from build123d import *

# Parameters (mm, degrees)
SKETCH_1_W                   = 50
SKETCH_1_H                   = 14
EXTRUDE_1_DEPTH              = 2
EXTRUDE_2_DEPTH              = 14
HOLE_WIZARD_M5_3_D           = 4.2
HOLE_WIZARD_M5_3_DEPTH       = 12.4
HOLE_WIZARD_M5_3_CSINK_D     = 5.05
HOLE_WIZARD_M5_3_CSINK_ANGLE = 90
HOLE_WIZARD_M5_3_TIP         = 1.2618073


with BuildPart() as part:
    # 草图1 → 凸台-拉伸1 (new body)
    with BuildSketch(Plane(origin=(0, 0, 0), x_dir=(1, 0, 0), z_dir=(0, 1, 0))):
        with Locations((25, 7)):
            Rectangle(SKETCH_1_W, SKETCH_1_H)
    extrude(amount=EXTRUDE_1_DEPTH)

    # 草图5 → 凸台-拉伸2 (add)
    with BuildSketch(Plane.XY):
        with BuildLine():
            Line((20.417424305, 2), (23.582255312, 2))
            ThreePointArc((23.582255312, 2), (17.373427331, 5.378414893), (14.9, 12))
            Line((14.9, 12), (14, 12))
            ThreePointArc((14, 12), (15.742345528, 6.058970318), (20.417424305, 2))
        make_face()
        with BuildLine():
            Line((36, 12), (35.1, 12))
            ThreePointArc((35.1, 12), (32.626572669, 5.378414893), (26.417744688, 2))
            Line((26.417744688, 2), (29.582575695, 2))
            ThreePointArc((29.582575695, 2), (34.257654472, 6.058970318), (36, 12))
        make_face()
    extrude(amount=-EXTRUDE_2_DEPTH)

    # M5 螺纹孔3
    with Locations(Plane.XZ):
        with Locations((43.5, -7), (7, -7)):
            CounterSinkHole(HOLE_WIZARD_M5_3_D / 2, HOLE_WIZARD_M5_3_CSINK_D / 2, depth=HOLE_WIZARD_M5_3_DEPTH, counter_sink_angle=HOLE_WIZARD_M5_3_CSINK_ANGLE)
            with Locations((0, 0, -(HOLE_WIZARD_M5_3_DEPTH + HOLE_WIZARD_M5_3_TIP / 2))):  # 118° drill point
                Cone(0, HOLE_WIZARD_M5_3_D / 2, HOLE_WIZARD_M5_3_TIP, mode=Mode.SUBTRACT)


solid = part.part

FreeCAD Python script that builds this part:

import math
import FreeCAD as App
import Part
import Sketcher

doc = App.newDocument("Part")
params = doc.addObject("Spreadsheet::Sheet", "Params")
for row, (alias, value) in enumerate([
    ("sketch1_width", "50 mm"),
    ("sketch1_height", "14 mm"),
    ("pad1_length", "2 mm"),
    ("sketch2_radius", "11 mm"),
    ("sketch2_radius2", "10.1 mm"),
    ("pad2_length", "14 mm"),
    ("sketch3_diameter", "4.2 mm"),
    ("hole_diameter", "4.2 mm"),
    ("hole_depth", "12.4 mm"),
    ("hole_csink_diameter", "5.05 mm"),
], start=1):
    params.set(f"A{row}", alias)
    params.set(f"B{row}", "=" + value)
    params.setAlias(f"B{row}", alias)

body = doc.addObject("PartDesign::Body", "Body")

sketch1 = body.newObject("Sketcher::SketchObject", "Sketch")
sketch1.AttachmentSupport = (doc.getObject("XZ_Plane"), [""])
sketch1.MapMode = "FlatFace"
sketch1.addGeometry(Part.LineSegment(App.Vector(0, -14, 0), App.Vector(0, 0, 0)), False)
sketch1.addGeometry(Part.LineSegment(App.Vector(0, 0, 0), App.Vector(50, 0, 0)), False)
sketch1.addGeometry(Part.LineSegment(App.Vector(50, 0, 0), App.Vector(50, -14, 0)), False)
sketch1.addGeometry(Part.LineSegment(App.Vector(50, -14, 0), App.Vector(0, -14, 0)), False)
sketch1.addConstraint(Sketcher.Constraint("Coincident", 0, 2, 1, 1))
sketch1.addConstraint(Sketcher.Constraint("Coincident", 1, 2, 2, 1))
sketch1.addConstraint(Sketcher.Constraint("Coincident", 2, 2, 3, 1))
sketch1.addConstraint(Sketcher.Constraint("Coincident", 3, 2, 0, 1))
sketch1.addConstraint(Sketcher.Constraint("Vertical", 0))
sketch1.addConstraint(Sketcher.Constraint("Horizontal", 1))
sketch1.addConstraint(Sketcher.Constraint("Vertical", 2))
sketch1.addConstraint(Sketcher.Constraint("Horizontal", 3))
sketch1.addConstraint(Sketcher.Constraint("Coincident", 0, 2, -1, 1))
sketch1.addConstraint(Sketcher.Constraint("DistanceX", 1, 1, 1, 2, 50.0))
sketch1.addConstraint(Sketcher.Constraint("DistanceY", 0, 1, 0, 2, 14.0))
sketch1.setExpression("Constraints[9]", "Params.sketch1_width")
sketch1.setExpression("Constraints[10]", "Params.sketch1_height")
pad1 = body.newObject("PartDesign::Pad", "Pad")
pad1.Profile = sketch1
pad1.setExpression("Length", "Params.pad1_length")
pad1.Reversed = True

sketch2 = body.newObject("Sketcher::SketchObject", "Sketch001")
sketch2.AttachmentSupport = (doc.getObject("XY_Plane"), [""])
sketch2.MapMode = "FlatFace"
sketch2.addGeometry(Part.LineSegment(App.Vector(20.4, 2, 0), App.Vector(23.6, 2, 0)), False)
sketch2.addGeometry(Part.ArcOfCircle(Part.Circle(App.Vector(25, 12, 0), App.Vector(0, 0, 1), 10.1), math.radians(180), math.radians(262)), False)
sketch2.addGeometry(Part.LineSegment(App.Vector(14.9, 12, 0), App.Vector(14, 12, 0)), False)
sketch2.addGeometry(Part.ArcOfCircle(Part.Circle(App.Vector(25, 12, 0), App.Vector(0, 0, 1), 11), math.radians(180), math.radians(245)), False)
sketch2.addGeometry(Part.LineSegment(App.Vector(36, 12, 0), App.Vector(35.1, 12, 0)), False)
sketch2.addGeometry(Part.ArcOfCircle(Part.Circle(App.Vector(25, 12, 0), App.Vector(0, 0, 1), 10.1), math.radians(-82), math.radians(0)), False)
sketch2.addGeometry(Part.LineSegment(App.Vector(26.4, 2, 0), App.Vector(29.6, 2, 0)), False)
sketch2.addGeometry(Part.ArcOfCircle(Part.Circle(App.Vector(25, 12, 0), App.Vector(0, 0, 1), 11), math.radians(-65), math.radians(0)), False)
sketch2.addConstraint(Sketcher.Constraint("Coincident", 0, 2, 1, 2))
sketch2.addConstraint(Sketcher.Constraint("Coincident", 1, 1, 2, 1))
sketch2.addConstraint(Sketcher.Constraint("Coincident", 2, 2, 3, 1))
sketch2.addConstraint(Sketcher.Constraint("Coincident", 3, 2, 0, 1))
sketch2.addConstraint(Sketcher.Constraint("Coincident", 4, 2, 5, 2))
sketch2.addConstraint(Sketcher.Constraint("Coincident", 5, 1, 6, 1))
sketch2.addConstraint(Sketcher.Constraint("Coincident", 6, 2, 7, 1))
sketch2.addConstraint(Sketcher.Constraint("Coincident", 7, 2, 4, 1))
sketch2.addConstraint(Sketcher.Constraint("Horizontal", 0))
sketch2.addConstraint(Sketcher.Constraint("Horizontal", 2))
sketch2.addConstraint(Sketcher.Constraint("Horizontal", 4))
sketch2.addConstraint(Sketcher.Constraint("Horizontal", 6))
sketch2.addConstraint(Sketcher.Constraint("Coincident", 3, 3, 1, 3))
sketch2.addConstraint(Sketcher.Constraint("Coincident", 5, 3, 1, 3))
sketch2.addConstraint(Sketcher.Constraint("Coincident", 7, 3, 1, 3))
sketch2.addConstraint(Sketcher.Constraint("Equal", 1, 5))
sketch2.addConstraint(Sketcher.Constraint("Equal", 3, 7))
sketch2.addConstraint(Sketcher.Constraint("Horizontal", 7, 3, 1, 1))
sketch2.addConstraint(Sketcher.Constraint("Horizontal", 2, 2, 4, 2))
sketch2.addConstraint(Sketcher.Constraint("Horizontal", 3, 2, 5, 1))
sketch2.addConstraint(Sketcher.Constraint("Radius", 3, 11.0))
sketch2.addConstraint(Sketcher.Constraint("Radius", 1, 10.1))
sketch2.addConstraint(Sketcher.Constraint("DistanceX", -1, 1, 1, 3, 25.0))
sketch2.addConstraint(Sketcher.Constraint("DistanceY", -1, 1, 1, 3, 12.0))
sketch2.addConstraint(Sketcher.Constraint("DistanceY", -1, 1, 0, 2, 2.0))
sketch2.setExpression("Constraints[20]", "Params.sketch2_radius")
sketch2.setExpression("Constraints[21]", "Params.sketch2_radius2")
pad2 = body.newObject("PartDesign::Pad", "Pad001")
pad2.Profile = sketch2
pad2.setExpression("Length", "Params.pad2_length")
pad2.Reversed = True

sketch3 = body.newObject("Sketcher::SketchObject", "Sketch002")
sketch3.AttachmentSupport = (doc.getObject("XZ_Plane"), [""])
sketch3.MapMode = "FlatFace"
sketch3.addGeometry(Part.Circle(App.Vector(43.5, -7, 0), App.Vector(0, 0, 1), 2.1), False)
sketch3.addGeometry(Part.Circle(App.Vector(7, -7, 0), App.Vector(0, 0, 1), 2.1), False)
sketch3.addConstraint(Sketcher.Constraint("Equal", 0, 1))
sketch3.addConstraint(Sketcher.Constraint("Horizontal", 0, 3, 1, 3))
sketch3.addConstraint(Sketcher.Constraint("Diameter", 0, 4.2))
sketch3.addConstraint(Sketcher.Constraint("DistanceY", 0, 3, -1, 1, 7.0))
sketch3.addConstraint(Sketcher.Constraint("DistanceX", -1, 1, 1, 3, 7.0))
sketch3.addConstraint(Sketcher.Constraint("DistanceX", -1, 1, 0, 3, 43.5))
sketch3.setExpression("Constraints[2]", "Params.sketch3_diameter")
doc.recompute()
hole = body.newObject("PartDesign::Hole", "Hole")
hole.Profile = sketch3
hole.ThreadType = "None"
hole.setExpression("Diameter", "Params.hole_diameter")
hole.DepthType = "Dimension"
hole.setExpression("Depth", "Params.hole_depth")
hole.DrillPoint = "Angled"
hole.DrillPointAngle = 118
hole.HoleCutType = "Countersink"
hole.setExpression("HoleCutDiameter", "Params.hole_csink_diameter")
hole.HoleCutCountersinkAngle = 90

doc.recompute()
